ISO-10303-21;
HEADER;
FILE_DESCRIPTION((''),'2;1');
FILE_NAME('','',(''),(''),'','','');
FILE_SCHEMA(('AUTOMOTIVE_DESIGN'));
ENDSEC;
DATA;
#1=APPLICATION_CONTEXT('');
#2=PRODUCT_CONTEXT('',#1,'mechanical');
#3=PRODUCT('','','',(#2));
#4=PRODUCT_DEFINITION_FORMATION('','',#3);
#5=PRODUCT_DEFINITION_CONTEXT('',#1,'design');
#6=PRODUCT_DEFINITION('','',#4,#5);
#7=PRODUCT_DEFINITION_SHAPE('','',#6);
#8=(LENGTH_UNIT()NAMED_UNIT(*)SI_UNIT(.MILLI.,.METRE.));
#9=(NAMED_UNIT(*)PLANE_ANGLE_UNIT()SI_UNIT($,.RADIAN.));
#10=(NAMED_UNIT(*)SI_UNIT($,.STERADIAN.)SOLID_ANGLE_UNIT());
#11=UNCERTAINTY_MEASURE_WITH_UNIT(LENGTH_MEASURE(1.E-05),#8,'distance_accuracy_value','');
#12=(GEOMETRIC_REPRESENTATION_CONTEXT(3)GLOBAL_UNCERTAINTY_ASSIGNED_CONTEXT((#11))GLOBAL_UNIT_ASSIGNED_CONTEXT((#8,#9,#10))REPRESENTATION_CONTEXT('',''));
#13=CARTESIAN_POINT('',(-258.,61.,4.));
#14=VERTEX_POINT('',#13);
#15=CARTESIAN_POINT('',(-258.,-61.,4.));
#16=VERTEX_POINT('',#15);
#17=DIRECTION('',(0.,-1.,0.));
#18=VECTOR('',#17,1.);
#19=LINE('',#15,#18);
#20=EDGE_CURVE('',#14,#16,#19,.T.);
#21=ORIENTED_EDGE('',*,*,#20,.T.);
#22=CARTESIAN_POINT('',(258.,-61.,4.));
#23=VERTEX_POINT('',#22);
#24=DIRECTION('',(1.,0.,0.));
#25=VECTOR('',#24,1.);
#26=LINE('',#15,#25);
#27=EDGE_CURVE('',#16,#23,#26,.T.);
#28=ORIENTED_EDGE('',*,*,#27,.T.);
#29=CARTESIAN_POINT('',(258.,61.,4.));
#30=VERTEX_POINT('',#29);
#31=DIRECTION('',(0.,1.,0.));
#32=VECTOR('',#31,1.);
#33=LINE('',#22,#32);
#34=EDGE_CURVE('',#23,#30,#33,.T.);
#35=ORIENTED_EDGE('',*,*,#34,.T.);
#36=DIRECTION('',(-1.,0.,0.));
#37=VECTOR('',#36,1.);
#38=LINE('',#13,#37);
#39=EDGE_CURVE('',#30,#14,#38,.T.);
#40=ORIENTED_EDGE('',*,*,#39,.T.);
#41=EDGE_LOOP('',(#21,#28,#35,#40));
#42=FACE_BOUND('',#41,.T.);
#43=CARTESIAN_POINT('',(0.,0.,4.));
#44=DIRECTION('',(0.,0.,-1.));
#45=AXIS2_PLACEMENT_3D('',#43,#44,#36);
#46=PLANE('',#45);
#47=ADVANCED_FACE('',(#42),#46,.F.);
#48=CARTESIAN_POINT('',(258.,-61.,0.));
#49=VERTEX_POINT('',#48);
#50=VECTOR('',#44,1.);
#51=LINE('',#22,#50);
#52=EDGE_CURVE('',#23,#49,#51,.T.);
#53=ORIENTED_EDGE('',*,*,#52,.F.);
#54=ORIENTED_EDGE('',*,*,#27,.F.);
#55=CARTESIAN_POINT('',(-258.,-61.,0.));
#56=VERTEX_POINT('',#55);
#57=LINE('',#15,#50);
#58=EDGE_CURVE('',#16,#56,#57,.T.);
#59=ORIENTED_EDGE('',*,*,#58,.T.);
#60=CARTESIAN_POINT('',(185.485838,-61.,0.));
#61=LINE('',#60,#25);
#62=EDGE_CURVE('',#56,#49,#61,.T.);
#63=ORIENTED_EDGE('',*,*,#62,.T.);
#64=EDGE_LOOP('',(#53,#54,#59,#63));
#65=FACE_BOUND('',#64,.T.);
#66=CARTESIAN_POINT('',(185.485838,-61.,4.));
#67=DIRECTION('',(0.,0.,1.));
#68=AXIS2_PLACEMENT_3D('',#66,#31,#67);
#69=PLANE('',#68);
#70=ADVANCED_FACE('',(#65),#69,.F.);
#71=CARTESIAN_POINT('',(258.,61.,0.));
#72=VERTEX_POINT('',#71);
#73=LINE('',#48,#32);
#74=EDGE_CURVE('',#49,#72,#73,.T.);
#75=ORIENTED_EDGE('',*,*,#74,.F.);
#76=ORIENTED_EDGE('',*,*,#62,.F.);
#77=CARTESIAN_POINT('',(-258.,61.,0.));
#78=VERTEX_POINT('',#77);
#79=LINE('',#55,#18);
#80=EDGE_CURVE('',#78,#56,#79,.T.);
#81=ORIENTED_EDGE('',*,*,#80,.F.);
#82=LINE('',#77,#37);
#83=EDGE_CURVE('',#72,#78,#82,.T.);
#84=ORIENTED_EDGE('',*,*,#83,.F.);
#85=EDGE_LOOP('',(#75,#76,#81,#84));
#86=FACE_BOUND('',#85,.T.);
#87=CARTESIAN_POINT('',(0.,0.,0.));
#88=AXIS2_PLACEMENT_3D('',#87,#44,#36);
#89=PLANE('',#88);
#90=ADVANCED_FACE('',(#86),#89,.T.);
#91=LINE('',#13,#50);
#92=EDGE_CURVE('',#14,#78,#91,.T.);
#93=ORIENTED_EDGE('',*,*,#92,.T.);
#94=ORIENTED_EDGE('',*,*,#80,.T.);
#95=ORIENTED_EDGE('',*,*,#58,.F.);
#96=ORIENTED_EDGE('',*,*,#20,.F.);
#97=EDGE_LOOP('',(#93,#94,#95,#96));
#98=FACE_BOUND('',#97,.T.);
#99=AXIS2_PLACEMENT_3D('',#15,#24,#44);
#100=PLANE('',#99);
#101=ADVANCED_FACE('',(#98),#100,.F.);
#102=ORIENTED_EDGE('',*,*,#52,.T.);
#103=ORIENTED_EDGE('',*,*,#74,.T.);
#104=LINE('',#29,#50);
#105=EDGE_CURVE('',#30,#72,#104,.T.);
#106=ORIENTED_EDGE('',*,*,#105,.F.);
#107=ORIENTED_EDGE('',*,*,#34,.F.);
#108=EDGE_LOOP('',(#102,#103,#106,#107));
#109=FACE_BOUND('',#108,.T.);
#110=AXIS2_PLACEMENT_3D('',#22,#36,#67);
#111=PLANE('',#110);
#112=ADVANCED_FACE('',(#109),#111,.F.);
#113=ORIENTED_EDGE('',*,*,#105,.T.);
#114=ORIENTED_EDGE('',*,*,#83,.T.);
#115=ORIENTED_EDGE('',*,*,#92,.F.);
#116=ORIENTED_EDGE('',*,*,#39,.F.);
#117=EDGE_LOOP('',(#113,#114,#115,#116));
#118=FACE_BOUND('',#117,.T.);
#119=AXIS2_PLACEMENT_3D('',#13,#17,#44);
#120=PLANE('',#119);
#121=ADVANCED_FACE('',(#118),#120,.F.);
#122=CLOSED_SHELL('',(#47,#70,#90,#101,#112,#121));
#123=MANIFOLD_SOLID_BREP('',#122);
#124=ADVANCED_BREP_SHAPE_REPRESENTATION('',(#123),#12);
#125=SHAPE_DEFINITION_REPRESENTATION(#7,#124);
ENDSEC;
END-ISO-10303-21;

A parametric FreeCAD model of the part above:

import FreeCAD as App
import Part
import Sketcher

V = App.Vector
Q = App.Units.Quantity


def add_polygon(sketch, points):
    """Adds a closed chain of lines whose ends are joined by coincident constraints."""
    first, n = sketch.GeometryCount, len(points)
    for a, b in zip(points, points[1:] + points[:1]):
        sketch.addGeometry(Part.LineSegment(App.Vector(*a, 0), App.Vector(*b, 0)), False)
    for i in range(n):
        sketch.addConstraint(Sketcher.Constraint("Coincident", first + i, 2, first + (i + 1) % n, 1))

doc = App.newDocument("Part")
params = doc.addObject("Spreadsheet::Sheet", "Params")
for row, (alias, value) in enumerate([
    ("sketch1_width", "516 mm"),
    ("sketch1_height", "122 mm"),
    ("pad1_length", "4 mm"),
], start=1):
    params.set(f"A{row}", alias)
    params.set(f"B{row}", "=" + value)
    params.setAlias(f"B{row}", alias)

body = doc.addObject("PartDesign::Body", "Body")

# Sketch on XY plane
sketch1 = body.newObject("Sketcher::SketchObject", "Sketch")
sketch1.AttachmentSupport = (doc.getObject("XY_Plane"), [""])
sketch1.MapMode = "FlatFace"
add_polygon(sketch1, [(-258, -61), (258, -61), (258, 61), (-258, 61)])  # lines 0-3
sketch1.addConstraint([
    Sketcher.Constraint("Horizontal", 0),
    Sketcher.Constraint("Vertical", 1),
    Sketcher.Constraint("Horizontal", 2),
    Sketcher.Constraint("Vertical", 3),
    Sketcher.Constraint("Symmetric", 0, 2, 2, 2, -1, 1),
    Sketcher.Constraint("DistanceX", 0, 1, 0, 2, Q("516 mm")),
    Sketcher.Constraint("DistanceY", 1, 1, 1, 2, Q("122 mm")),
])
sketch1.setExpression("Constraints[9]", "Params.sketch1_width")
sketch1.setExpression("Constraints[10]", "Params.sketch1_height")
pad1 = body.newObject("PartDesign::Pad", "Pad")
pad1.Profile = sketch1
pad1.setExpression("Length", "Params.pad1_length")

doc.recompute()
